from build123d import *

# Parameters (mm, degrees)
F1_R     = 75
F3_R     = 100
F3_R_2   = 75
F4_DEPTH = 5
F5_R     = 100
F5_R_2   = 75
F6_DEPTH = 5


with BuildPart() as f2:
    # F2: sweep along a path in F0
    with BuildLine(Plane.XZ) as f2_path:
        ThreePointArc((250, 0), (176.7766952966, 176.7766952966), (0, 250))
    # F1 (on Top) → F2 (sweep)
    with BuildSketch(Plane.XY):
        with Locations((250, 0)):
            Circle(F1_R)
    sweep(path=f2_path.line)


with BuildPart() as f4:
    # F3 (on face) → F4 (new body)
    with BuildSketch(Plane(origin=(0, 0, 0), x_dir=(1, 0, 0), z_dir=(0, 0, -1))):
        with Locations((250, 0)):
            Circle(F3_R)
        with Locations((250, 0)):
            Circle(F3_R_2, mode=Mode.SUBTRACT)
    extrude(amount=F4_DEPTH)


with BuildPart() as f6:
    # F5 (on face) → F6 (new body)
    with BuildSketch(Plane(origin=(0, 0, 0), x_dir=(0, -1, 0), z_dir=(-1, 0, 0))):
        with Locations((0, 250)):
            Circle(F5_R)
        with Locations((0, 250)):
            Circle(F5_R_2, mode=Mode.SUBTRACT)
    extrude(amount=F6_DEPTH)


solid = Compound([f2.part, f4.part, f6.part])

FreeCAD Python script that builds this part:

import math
import FreeCAD as App
import Part
import Sketcher
Q = App.Units.Quantity

doc = App.newDocument("Part")
params = doc.addObject("Spreadsheet::Sheet", "Params")
for row, (alias, value) in enumerate([
    ("sketch1_diameter", "150 mm"),
    ("sketch2_radius", "250 mm"),
    ("sketch3_diameter", "200 mm"),
    ("sketch3_diameter2", "150 mm"),
    ("pad1_length", "5 mm"),
    ("sketch4_diameter", "200 mm"),
    ("sketch4_diameter2", "150 mm"),
    ("pad2_length", "5 mm"),
], start=1):
    params.set(f"A{row}", alias)
    params.set(f"B{row}", "=" + value)
    params.setAlias(f"B{row}", alias)

body = doc.addObject("PartDesign::Body", "Body")

# Sketch on XY plane
sketch1 = body.newObject("Sketcher::SketchObject", "Sketch")
sketch1.AttachmentSupport = (doc.getObject("XY_Plane"), [""])
sketch1.MapMode = "FlatFace"
sketch1.addGeometry(Part.Circle(App.Vector(250, 0, 0), App.Vector(0, 0, 1), 75), False)
sketch1.addConstraint([
    Sketcher.Constraint("PointOnObject", 0, 3, -1),
    Sketcher.Constraint("Diameter", 0, Q("150 mm")),
    Sketcher.Constraint("DistanceX", -1, 1, 0, 3, Q("250 mm")),
])
sketch1.setExpression("Constraints[1]", "Params.sketch1_diameter")

# Sketch on XZ plane
sketch2 = body.newObject("Sketcher::SketchObject", "Sketch001")
sketch2.AttachmentSupport = (doc.getObject("XZ_Plane"), [""])
sketch2.MapMode = "FlatFace"
sketch2.addGeometry(Part.ArcOfCircle(Part.Circle(App.Vector(0, 0, 0), App.Vector(0, 0, 1), 250), math.radians(0), math.radians(90)), False)
sketch2.addConstraint([
    Sketcher.Constraint("Coincident", 0, 3, -1, 1),
    Sketcher.Constraint("PointOnObject", 0, 1, -1),
    Sketcher.Constraint("PointOnObject", 0, 2, -2),
    Sketcher.Constraint("Radius", 0, Q("250 mm")),
])
sketch2.setExpression("Constraints[3]", "Params.sketch2_radius")
doc.recompute()

additivepipe = body.newObject("PartDesign::AdditivePipe", "AdditivePipe")
additivepipe.Profile = sketch1
additivepipe.Spine = (sketch2, ["Edge1"])
body2 = doc.addObject("PartDesign::Body", "Body001")

# Sketch on XY plane
sketch3 = body2.newObject("Sketcher::SketchObject", "Sketch002")
sketch3.AttachmentSupport = (doc.getObject("XY_Plane001"), [""])
sketch3.MapMode = "FlatFace"
sketch3.addGeometry([
    Part.Circle(App.Vector(250, 0, 0), App.Vector(0, 0, 1), 100),
    Part.Circle(App.Vector(250, 0, 0), App.Vector(0, 0, 1), 75),
], False)
sketch3.addConstraint([
    Sketcher.Constraint("Coincident", 1, 3, 0, 3),
    Sketcher.Constraint("PointOnObject", 0, 3, -1),
    Sketcher.Constraint("Diameter", 0, Q("200 mm")),
    Sketcher.Constraint("Diameter", 1, Q("150 mm")),
    Sketcher.Constraint("DistanceX", -1, 1, 0, 3, Q("250 mm")),
])
sketch3.setExpression("Constraints[2]", "Params.sketch3_diameter")
sketch3.setExpression("Constraints[3]", "Params.sketch3_diameter2")
pad1 = body2.newObject("PartDesign::Pad", "Pad")
pad1.Profile = sketch3
pad1.setExpression("Length", "Params.pad1_length")
pad1.Reversed = True
body3 = doc.addObject("PartDesign::Body", "Body002")

# Sketch on YZ plane
sketch4 = body3.newObject("Sketcher::SketchObject", "Sketch003")
sketch4.AttachmentSupport = (doc.getObject("YZ_Plane002"), [""])
sketch4.MapMode = "FlatFace"
sketch4.addGeometry([
    Part.Circle(App.Vector(0, 250, 0), App.Vector(0, 0, 1), 100),
    Part.Circle(App.Vector(0, 250, 0), App.Vector(0, 0, 1), 75),
], False)
sketch4.addConstraint([
    Sketcher.Constraint("Coincident", 1, 3, 0, 3),
    Sketcher.Constraint("PointOnObject", 0, 3, -2),
    Sketcher.Constraint("Diameter", 0, Q("200 mm")),
    Sketcher.Constraint("Diameter", 1, Q("150 mm")),
    Sketcher.Constraint("DistanceY", -1, 1, 0, 3, Q("250 mm")),
])
sketch4.setExpression("Constraints[2]", "Params.sketch4_diameter")
sketch4.setExpression("Constraints[3]", "Params.sketch4_diameter2")
pad2 = body3.newObject("PartDesign::Pad", "Pad001")
pad2.Profile = sketch4
pad2.setExpression("Length", "Params.pad2_length")
pad2.Reversed = True

doc.recompute()
